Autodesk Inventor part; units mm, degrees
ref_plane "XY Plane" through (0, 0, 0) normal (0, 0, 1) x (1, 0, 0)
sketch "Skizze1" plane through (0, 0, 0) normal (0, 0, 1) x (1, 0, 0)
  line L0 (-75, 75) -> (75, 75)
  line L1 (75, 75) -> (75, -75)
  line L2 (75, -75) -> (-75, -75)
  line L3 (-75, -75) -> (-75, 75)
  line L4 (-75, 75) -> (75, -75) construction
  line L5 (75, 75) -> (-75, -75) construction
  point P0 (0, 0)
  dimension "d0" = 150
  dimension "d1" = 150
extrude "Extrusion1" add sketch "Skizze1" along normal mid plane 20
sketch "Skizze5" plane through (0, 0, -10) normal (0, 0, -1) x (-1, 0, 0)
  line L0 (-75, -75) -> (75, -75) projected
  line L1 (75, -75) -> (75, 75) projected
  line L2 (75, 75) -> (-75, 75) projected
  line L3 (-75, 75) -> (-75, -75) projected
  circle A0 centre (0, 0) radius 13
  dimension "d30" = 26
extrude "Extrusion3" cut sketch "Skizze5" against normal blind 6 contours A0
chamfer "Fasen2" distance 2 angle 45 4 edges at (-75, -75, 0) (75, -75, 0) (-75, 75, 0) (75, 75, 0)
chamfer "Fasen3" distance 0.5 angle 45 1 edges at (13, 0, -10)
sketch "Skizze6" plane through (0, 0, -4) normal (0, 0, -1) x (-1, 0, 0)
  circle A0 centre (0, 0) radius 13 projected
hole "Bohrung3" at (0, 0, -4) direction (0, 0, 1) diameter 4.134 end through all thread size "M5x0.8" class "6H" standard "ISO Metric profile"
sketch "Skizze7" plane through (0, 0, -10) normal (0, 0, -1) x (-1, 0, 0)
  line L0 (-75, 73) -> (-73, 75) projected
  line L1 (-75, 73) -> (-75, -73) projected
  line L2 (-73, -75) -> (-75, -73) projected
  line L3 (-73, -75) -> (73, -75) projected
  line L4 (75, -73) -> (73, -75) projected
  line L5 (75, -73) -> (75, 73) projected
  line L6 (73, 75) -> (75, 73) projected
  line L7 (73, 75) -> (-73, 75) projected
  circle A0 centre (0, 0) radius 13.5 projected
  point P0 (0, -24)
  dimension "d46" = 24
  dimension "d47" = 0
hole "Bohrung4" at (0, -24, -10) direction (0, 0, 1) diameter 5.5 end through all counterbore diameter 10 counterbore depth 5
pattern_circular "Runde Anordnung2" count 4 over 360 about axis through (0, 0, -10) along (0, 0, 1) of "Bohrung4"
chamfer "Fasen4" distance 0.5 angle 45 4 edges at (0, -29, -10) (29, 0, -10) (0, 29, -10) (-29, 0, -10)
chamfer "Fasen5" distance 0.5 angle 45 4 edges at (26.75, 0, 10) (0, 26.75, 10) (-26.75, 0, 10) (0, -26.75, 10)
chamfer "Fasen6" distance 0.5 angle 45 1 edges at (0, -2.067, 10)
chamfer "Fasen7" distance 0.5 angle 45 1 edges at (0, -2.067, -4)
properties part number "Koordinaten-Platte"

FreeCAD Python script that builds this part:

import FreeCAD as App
import Part
import Sketcher
Q = App.Units.Quantity


def edges_at(feature, points):
    """Names of the edges that pass closest to the given points."""
    edges = feature.Shape.Edges
    near = lambda p: min(range(len(edges)), key=lambda i: edges[i].distToShape(Part.Vertex(*p))[0])
    return sorted({f"Edge{near(p) + 1}" for p in points})


def add_polygon(sketch, points):
    """Adds a closed chain of lines whose ends are joined by coincident constraints."""
    first, n = sketch.GeometryCount, len(points)
    for a, b in zip(points, points[1:] + points[:1]):
        sketch.addGeometry(Part.LineSegment(App.Vector(*a, 0), App.Vector(*b, 0)), False)
    for i in range(n):
        sketch.addConstraint(Sketcher.Constraint("Coincident", first + i, 2, first + (i + 1) % n, 1))

doc = App.newDocument("Part")
params = doc.addObject("Spreadsheet::Sheet", "Params")
for row, (alias, value) in enumerate([
    ("sketch1_width", "150 mm"),
    ("pad1_length", "20 mm"),
    ("sketch2_diameter", "26 mm"),
    ("pocket1_length", "6 mm"),
    ("chamfer_size", "2 mm"),
    ("chamfer2_size", "0.5 mm"),
    ("hole_diameter", "4.134 mm"),
    ("sketch4_diameter", "5.5 mm"),
    ("hole2_diameter", "5.5 mm"),
    ("hole2_cbore_diameter", "10 mm"),
    ("hole2_cbore_depth", "5 mm"),
    ("chamfer3_size", "0.5 mm"),
    ("chamfer4_size", "0.5 mm"),
    ("chamfer5_size", "0.5 mm"),
    ("chamfer6_size", "0.5 mm"),
], start=1):
    params.set(f"A{row}", alias)
    params.set(f"B{row}", "=" + value)
    params.setAlias(f"B{row}", alias)

body = doc.addObject("PartDesign::Body", "Body")

# Sketch on XY plane
sketch1 = doc.addObject("Sketcher::SketchObject", "Sketch")
body.addObject(sketch1)
sketch1.AttachmentSupport = (doc.XY_Plane, [""])
sketch1.MapMode = "FlatFace"
add_polygon(sketch1, [(75, 75), (-75, 75), (-75, -75), (75, -75)])  # lines 0-3
sketch1.addConstraint([
    Sketcher.Constraint("Horizontal", 0),
    Sketcher.Constraint("Vertical", 1),
    Sketcher.Constraint("Horizontal", 2),
    Sketcher.Constraint("Vertical", 3),
    Sketcher.Constraint("Symmetric", 0, 2, 2, 2, -1, 1),
    Sketcher.Constraint("Equal", 2, 1),
    Sketcher.Constraint("DistanceX", 0, 2, 0, 1, Q("150 mm")),
])
sketch1.setExpression("Constraints[10]", "Params.sketch1_width")
pad1 = doc.addObject("PartDesign::Pad", "Pad")
body.addObject(pad1)
pad1.Profile = sketch1
pad1.setExpression("Length", "Params.pad1_length")
pad1.Midplane = True

# Sketch on XY plane
sketch2 = doc.addObject("Sketcher::SketchObject", "Sketch001")
body.addObject(sketch2)
sketch2.AttachmentSupport = (doc.XY_Plane, [""])
sketch2.MapMode = "FlatFace"
sketch2.AttachmentOffset = App.Placement(App.Vector(0, 0, -10), App.Rotation())
sketch2.addGeometry(Part.Circle(App.Vector(0, 0, 0), App.Vector(0, 0, 1), 13), False)
sketch2.addConstraint([
    Sketcher.Constraint("Coincident", 0, 3, -1, 1),
    Sketcher.Constraint("Diameter", 0, Q("26 mm")),
])
sketch2.setExpression("Constraints[1]", "Params.sketch2_diameter")
pocket1 = doc.addObject("PartDesign::Pocket", "Pocket")
body.addObject(pocket1)
pocket1.Profile = sketch2
pocket1.setExpression("Length", "Params.pocket1_length")
pocket1.Reversed = True
doc.recompute()

chamfer = doc.addObject("PartDesign::Chamfer", "Chamfer")
body.addObject(chamfer)
chamfer.Base = (pocket1, edges_at(pocket1, [
    (-75, -75, 0),
    (75, -75, 0),
    (-75, 75, 0),
    (75, 75, 0),
]))
chamfer.setExpression("Size", "Params.chamfer_size")
doc.recompute()

chamfer2 = doc.addObject("PartDesign::Chamfer", "Chamfer001")
body.addObject(chamfer2)
chamfer2.Base = (chamfer, edges_at(chamfer, [(13, 0, -10)]))
chamfer2.setExpression("Size", "Params.chamfer2_size")

# Sketch on XY plane
sketch3 = doc.addObject("Sketcher::SketchObject", "Sketch002")
body.addObject(sketch3)
sketch3.AttachmentSupport = (doc.XY_Plane, [""])
sketch3.MapMode = "FlatFace"
sketch3.AttachmentOffset = App.Placement(App.Vector(0, 0, -4), App.Rotation())
sketch3.addGeometry(Part.Circle(App.Vector(0, 0, 0), App.Vector(0, 0, 1), 2.1), False)
sketch3.addConstraint([
    Sketcher.Constraint("Coincident", 0, 3, -1, 1),
    Sketcher.Constraint("Diameter", 0, Q("4.134 mm")),
])
doc.recompute()
hole = doc.addObject("PartDesign::Hole", "Hole")
body.addObject(hole)
hole.Profile = sketch3
hole.ThreadType = "None"
hole.setExpression("Diameter", "Params.hole_diameter")
hole.DepthType = "ThroughAll"
hole.Reversed = True

# Sketch on XY plane
sketch4 = doc.addObject("Sketcher::SketchObject", "Sketch003")
body.addObject(sketch4)
sketch4.AttachmentSupport = (doc.XY_Plane, [""])
sketch4.MapMode = "FlatFace"
sketch4.AttachmentOffset = App.Placement(App.Vector(0, 0, -10), App.Rotation())
sketch4.addGeometry(Part.Circle(App.Vector(0, -24, 0), App.Vector(0, 0, 1), 2.8), False)
sketch4.addConstraint([
    Sketcher.Constraint("PointOnObject", 0, 3, -2),
    Sketcher.Constraint("Diameter", 0, Q("5.5 mm")),
    Sketcher.Constraint("DistanceY", 0, 3, -1, 1, Q("24 mm")),
])
sketch4.setExpression("Constraints[1]", "Params.sketch4_diameter")
doc.recompute()
hole2 = doc.addObject("PartDesign::Hole", "Hole001")
body.addObject(hole2)
hole2.Profile = sketch4
hole2.ThreadType = "None"
hole2.setExpression("Diameter", "Params.hole2_diameter")
hole2.DepthType = "ThroughAll"
hole2.HoleCutType = "Counterbore"
hole2.setExpression("HoleCutDiameter", "Params.hole2_cbore_diameter")
hole2.setExpression("HoleCutDepth", "Params.hole2_cbore_depth")
hole2.Reversed = True
doc.recompute()

polarpattern = doc.addObject("PartDesign::PolarPattern", "PolarPattern")
body.addObject(polarpattern)
polarpattern.Originals = [hole2]
polarpattern.Axis = (doc.Z_Axis, [""])
polarpattern.Angle = 360
polarpattern.Occurrences = 4
body.Tip = polarpattern
doc.recompute()

chamfer3 = doc.addObject("PartDesign::Chamfer", "Chamfer002")
body.addObject(chamfer3)
chamfer3.Base = (polarpattern, edges_at(polarpattern, [
    (0, -29, -10),
    (29, 0, -10),
    (0, 29, -10),
    (-29, 0, -10),
]))
chamfer3.setExpression("Size", "Params.chamfer3_size")
doc.recompute()

chamfer4 = doc.addObject("PartDesign::Chamfer", "Chamfer003")
body.addObject(chamfer4)
chamfer4.Base = (chamfer3, edges_at(chamfer3, [
    (26.75, 0, 10),
    (0, 26.75, 10),
    (-26.75, 0, 10),
    (0, -26.75, 10),
]))
chamfer4.setExpression("Size", "Params.chamfer4_size")
doc.recompute()

chamfer5 = doc.addObject("PartDesign::Chamfer", "Chamfer004")
body.addObject(chamfer5)
chamfer5.Base = (chamfer4, edges_at(chamfer4, [(0, -2.067, 10)]))
chamfer5.setExpression("Size", "Params.chamfer5_size")
doc.recompute()

chamfer6 = doc.addObject("PartDesign::Chamfer", "Chamfer005")
body.addObject(chamfer6)
chamfer6.Base = (chamfer5, edges_at(chamfer5, [(0, -2.067, -4)]))
chamfer6.setExpression("Size", "Params.chamfer6_size")

doc.recompute()
